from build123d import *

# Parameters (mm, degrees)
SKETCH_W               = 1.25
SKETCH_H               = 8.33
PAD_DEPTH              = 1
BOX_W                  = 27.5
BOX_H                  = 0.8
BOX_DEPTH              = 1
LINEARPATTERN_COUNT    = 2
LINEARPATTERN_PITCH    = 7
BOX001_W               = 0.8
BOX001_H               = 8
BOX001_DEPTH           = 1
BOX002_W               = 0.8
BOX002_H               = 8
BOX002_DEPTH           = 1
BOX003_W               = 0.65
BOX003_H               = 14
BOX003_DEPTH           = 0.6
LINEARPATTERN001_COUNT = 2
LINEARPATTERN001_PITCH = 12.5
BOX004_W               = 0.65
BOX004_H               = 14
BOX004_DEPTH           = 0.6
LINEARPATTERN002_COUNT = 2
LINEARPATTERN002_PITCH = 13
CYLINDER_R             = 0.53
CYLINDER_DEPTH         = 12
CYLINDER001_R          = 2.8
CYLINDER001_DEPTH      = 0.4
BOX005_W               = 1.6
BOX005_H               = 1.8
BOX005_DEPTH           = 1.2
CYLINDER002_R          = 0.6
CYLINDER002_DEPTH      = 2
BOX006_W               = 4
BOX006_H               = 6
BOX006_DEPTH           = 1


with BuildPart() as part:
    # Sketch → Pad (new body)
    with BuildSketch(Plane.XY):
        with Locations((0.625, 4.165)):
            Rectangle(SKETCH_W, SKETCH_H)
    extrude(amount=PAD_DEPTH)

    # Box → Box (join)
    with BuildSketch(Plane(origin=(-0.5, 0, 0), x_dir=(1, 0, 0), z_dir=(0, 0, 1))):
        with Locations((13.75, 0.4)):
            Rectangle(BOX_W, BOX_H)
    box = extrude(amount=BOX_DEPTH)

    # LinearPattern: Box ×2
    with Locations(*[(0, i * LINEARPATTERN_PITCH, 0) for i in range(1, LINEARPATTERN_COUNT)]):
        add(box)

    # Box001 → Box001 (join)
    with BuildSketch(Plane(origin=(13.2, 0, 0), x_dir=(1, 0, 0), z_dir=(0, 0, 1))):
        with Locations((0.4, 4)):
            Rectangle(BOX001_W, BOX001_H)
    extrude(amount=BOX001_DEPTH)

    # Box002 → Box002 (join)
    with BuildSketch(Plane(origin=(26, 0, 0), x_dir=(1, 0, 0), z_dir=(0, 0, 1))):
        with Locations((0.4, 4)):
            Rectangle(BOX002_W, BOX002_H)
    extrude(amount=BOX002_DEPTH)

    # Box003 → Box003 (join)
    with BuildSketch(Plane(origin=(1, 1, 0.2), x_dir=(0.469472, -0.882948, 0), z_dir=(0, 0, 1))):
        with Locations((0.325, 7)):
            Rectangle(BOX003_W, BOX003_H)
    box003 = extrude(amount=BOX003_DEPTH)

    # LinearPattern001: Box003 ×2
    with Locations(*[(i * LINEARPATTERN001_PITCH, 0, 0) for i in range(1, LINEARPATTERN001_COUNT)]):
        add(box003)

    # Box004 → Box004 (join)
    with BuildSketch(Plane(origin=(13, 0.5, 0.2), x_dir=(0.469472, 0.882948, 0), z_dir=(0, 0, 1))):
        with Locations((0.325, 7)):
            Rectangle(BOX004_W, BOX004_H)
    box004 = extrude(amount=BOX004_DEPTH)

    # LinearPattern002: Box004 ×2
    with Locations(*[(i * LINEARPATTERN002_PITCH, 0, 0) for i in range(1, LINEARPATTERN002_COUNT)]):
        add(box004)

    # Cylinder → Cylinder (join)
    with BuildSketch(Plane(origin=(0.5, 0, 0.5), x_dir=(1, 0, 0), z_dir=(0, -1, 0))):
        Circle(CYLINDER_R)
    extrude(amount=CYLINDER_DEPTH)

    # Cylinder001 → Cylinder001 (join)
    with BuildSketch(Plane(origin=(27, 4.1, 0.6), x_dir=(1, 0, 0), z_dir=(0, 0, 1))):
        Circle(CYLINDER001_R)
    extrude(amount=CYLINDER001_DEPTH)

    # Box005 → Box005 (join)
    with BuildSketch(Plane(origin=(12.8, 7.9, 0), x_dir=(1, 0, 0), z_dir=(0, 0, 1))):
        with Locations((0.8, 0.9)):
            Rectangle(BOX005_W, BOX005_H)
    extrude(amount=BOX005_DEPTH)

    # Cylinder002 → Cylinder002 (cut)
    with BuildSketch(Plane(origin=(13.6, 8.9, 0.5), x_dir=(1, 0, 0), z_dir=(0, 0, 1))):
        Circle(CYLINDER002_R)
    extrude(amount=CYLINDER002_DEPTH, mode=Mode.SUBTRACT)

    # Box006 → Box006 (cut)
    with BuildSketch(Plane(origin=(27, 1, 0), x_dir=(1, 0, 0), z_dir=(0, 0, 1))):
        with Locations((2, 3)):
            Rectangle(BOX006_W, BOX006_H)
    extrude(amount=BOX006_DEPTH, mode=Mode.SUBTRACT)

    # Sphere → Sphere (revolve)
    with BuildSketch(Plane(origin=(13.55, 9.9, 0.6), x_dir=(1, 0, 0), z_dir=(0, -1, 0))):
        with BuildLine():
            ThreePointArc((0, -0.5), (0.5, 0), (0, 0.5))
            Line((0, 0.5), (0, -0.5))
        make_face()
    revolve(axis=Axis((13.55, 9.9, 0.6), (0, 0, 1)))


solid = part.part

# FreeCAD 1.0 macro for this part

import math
import FreeCAD as App
import Part
import Sketcher

V = App.Vector
Q = App.Units.Quantity

doc = App.newDocument("Part")
body = doc.addObject("PartDesign::Body", "Body")

# Sketch on XY plane
sketch1 = body.newObject("Sketcher::SketchObject", "Sketch")
sketch1.AttachmentSupport = (doc.getObject("XY_Plane"), [""])
sketch1.MapMode = "FlatFace"
sketch1.addGeometry([
    Part.LineSegment(V(0, 8.3, 0), V(0, 0, 0)),
    Part.LineSegment(V(0, 0, 0), V(1.2, 0, 0)),
    Part.LineSegment(V(1.2, 0, 0), V(1.2, 8.3, 0)),
    Part.LineSegment(V(1.2, 8.3, 0), V(0, 8.3, 0)),
], False)
sketch1.addConstraint([
    Sketcher.Constraint("Coincident", 0, 2, 1, 1),
    Sketcher.Constraint("Coincident", 1, 2, 2, 1),
    Sketcher.Constraint("Coincident", 2, 2, 3, 1),
    Sketcher.Constraint("Coincident", 3, 2, 0, 1),
    Sketcher.Constraint("Vertical", 0),
    Sketcher.Constraint("Horizontal", 1),
    Sketcher.Constraint("Vertical", 2),
    Sketcher.Constraint("Horizontal", 3),
    Sketcher.Constraint("Coincident", 0, 2, -1, 1),
    Sketcher.Constraint("DistanceX", 1, 1, 1, 2, 1.25),
    Sketcher.Constraint("DistanceY", 0, 2, 0, 1, 8.33),
])
pad1 = body.newObject("PartDesign::Pad", "Pad")
pad1.Profile = sketch1
pad1.Length = 1

# Sketch on XY plane
sketch2 = body.newObject("Sketcher::SketchObject", "Sketch001")
sketch2.AttachmentSupport = (doc.getObject("XY_Plane"), [""])
sketch2.MapMode = "FlatFace"
sketch2.addGeometry([
    Part.LineSegment(V(-0.5, 0.8, 0), V(-0.5, 0, 0)),
    Part.LineSegment(V(-0.5, 0, 0), V(27, 0, 0)),
    Part.LineSegment(V(27, 0, 0), V(27, 0.8, 0)),
    Part.LineSegment(V(27, 0.8, 0), V(-0.5, 0.8, 0)),
], False)
sketch2.addConstraint([
    Sketcher.Constraint("Coincident", 0, 2, 1, 1),
    Sketcher.Constraint("Coincident", 1, 2, 2, 1),
    Sketcher.Constraint("Coincident", 2, 2, 3, 1),
    Sketcher.Constraint("Coincident", 3, 2, 0, 1),
    Sketcher.Constraint("Vertical", 0),
    Sketcher.Constraint("Horizontal", 1),
    Sketcher.Constraint("Vertical", 2),
    Sketcher.Constraint("Horizontal", 3),
    Sketcher.Constraint("PointOnObject", 0, 2, -1),
    Sketcher.Constraint("DistanceX", 1, 1, 1, 2, 27.5),
    Sketcher.Constraint("DistanceY", 0, 2, 0, 1, 0.8),
    Sketcher.Constraint("DistanceX", -1, 1, 1, 2, 27.0),
])
pad2 = body.newObject("PartDesign::Pad", "Pad001")
pad2.Profile = sketch2
pad2.Length = 1
doc.recompute()

linearpattern = body.newObject("PartDesign::LinearPattern", "LinearPattern")
linearpattern.Originals = [pad2]
linearpattern.Direction = (doc.getObject("Y_Axis"), [""])
linearpattern.Mode = "offset"
linearpattern.Offset = 7
linearpattern.Occurrences = 2
body.Tip = linearpattern

# Sketch on XY plane
sketch3 = body.newObject("Sketcher::SketchObject", "Sketch002")
sketch3.AttachmentSupport = (doc.getObject("XY_Plane"), [""])
sketch3.MapMode = "FlatFace"
sketch3.addGeometry([
    Part.LineSegment(V(13.2, 8, 0), V(13.2, 0, 0)),
    Part.LineSegment(V(13.2, 0, 0), V(14, 0, 0)),
    Part.LineSegment(V(14, 0, 0), V(14, 8, 0)),
    Part.LineSegment(V(14, 8, 0), V(13.2, 8, 0)),
], False)
sketch3.addConstraint([
    Sketcher.Constraint("Coincident", 0, 2, 1, 1),
    Sketcher.Constraint("Coincident", 1, 2, 2, 1),
    Sketcher.Constraint("Coincident", 2, 2, 3, 1),
    Sketcher.Constraint("Coincident", 3, 2, 0, 1),
    Sketcher.Constraint("Vertical", 0),
    Sketcher.Constraint("Horizontal", 1),
    Sketcher.Constraint("Vertical", 2),
    Sketcher.Constraint("Horizontal", 3),
    Sketcher.Constraint("PointOnObject", 0, 2, -1),
    Sketcher.Constraint("DistanceY", 0, 2, 0, 1, 8.0),
    Sketcher.Constraint("DistanceX", 1, 1, 1, 2, 0.8),
    Sketcher.Constraint("DistanceX", -1, 1, 1, 2, 14.0),
])
pad3 = body.newObject("PartDesign::Pad", "Pad002")
pad3.Profile = sketch3
pad3.Length = 1

# Sketch on XY plane
sketch4 = body.newObject("Sketcher::SketchObject", "Sketch003")
sketch4.AttachmentSupport = (doc.getObject("XY_Plane"), [""])
sketch4.MapMode = "FlatFace"
sketch4.addGeometry([
    Part.LineSegment(V(26, 8, 0), V(26, 0, 0)),
    Part.LineSegment(V(26, 0, 0), V(26.8, 0, 0)),
    Part.LineSegment(V(26.8, 0, 0), V(26.8, 8, 0)),
    Part.LineSegment(V(26.8, 8, 0), V(26, 8, 0)),
], False)
sketch4.addConstraint([
    Sketcher.Constraint("Coincident", 0, 2, 1, 1),
    Sketcher.Constraint("Coincident", 1, 2, 2, 1),
    Sketcher.Constraint("Coincident", 2, 2, 3, 1),
    Sketcher.Constraint("Coincident", 3, 2, 0, 1),
    Sketcher.Constraint("Vertical", 0),
    Sketcher.Constraint("Horizontal", 1),
    Sketcher.Constraint("Vertical", 2),
    Sketcher.Constraint("Horizontal", 3),
    Sketcher.Constraint("PointOnObject", 0, 2, -1),
    Sketcher.Constraint("DistanceY", 0, 2, 0, 1, 8.0),
    Sketcher.Constraint("DistanceX", 1, 1, 1, 2, 0.8),
    Sketcher.Constraint("DistanceX", -1, 1, 0, 2, 26.0),
])
pad4 = body.newObject("PartDesign::Pad", "Pad003")
pad4.Profile = sketch4
pad4.Length = 1

# Sketch on XY plane
sketch5 = body.newObject("Sketcher::SketchObject", "Sketch004")
sketch5.AttachmentSupport = (doc.getObject("XY_Plane"), [""])
sketch5.MapMode = "FlatFace"
sketch5.AttachmentOffset = App.Placement(V(0, 0, 0.2), App.Rotation())
sketch5.addGeometry([
    Part.LineSegment(V(13.4, 7.6, 0), V(1, 1, 0)),
    Part.LineSegment(V(1, 1, 0), V(1.3, 0.4, 0)),
    Part.LineSegment(V(1.3, 0.4, 0), V(13.7, 7, 0)),
    Part.LineSegment(V(13.7, 7, 0), V(13.4, 7.6, 0)),
], False)
sketch5.addConstraint([
    Sketcher.Constraint("Coincident", 0, 2, 1, 1),
    Sketcher.Constraint("Coincident", 1, 2, 2, 1),
    Sketcher.Constraint("Coincident", 2, 2, 3, 1),
    Sketcher.Constraint("Coincident", 3, 2, 0, 1),
    Sketcher.Constraint("Perpendicular", 0, 1),
    Sketcher.Constraint("Perpendicular", 1, 2),
    Sketcher.Constraint("Perpendicular", 2, 3),
    Sketcher.Constraint("Angle", 0, Q("-151.999989 deg")),
    Sketcher.Constraint("Distance", 0, 14.0),
    Sketcher.Constraint("DistanceX", -1, 1, 0, 2, 1.0),
    Sketcher.Constraint("DistanceY", -1, 1, 0, 2, 1.0),
    Sketcher.Constraint("Distance", 1, 0.65),
])
pad5 = body.newObject("PartDesign::Pad", "Pad004")
pad5.Profile = sketch5
pad5.Length = 0.6
doc.recompute()

linearpattern2 = body.newObject("PartDesign::LinearPattern", "LinearPattern001")
linearpattern2.Originals = [pad5]
linearpattern2.Direction = (doc.getObject("X_Axis"), [""])
linearpattern2.Mode = "offset"
linearpattern2.Offset = 12.5
linearpattern2.Occurrences = 2
body.Tip = linearpattern2

# Sketch on XY plane
sketch6 = body.newObject("Sketcher::SketchObject", "Sketch005")
sketch6.AttachmentSupport = (doc.getObject("XY_Plane"), [""])
sketch6.MapMode = "FlatFace"
sketch6.AttachmentOffset = App.Placement(V(0, 0, 0.2), App.Rotation())
sketch6.addGeometry([
    Part.LineSegment(V(0.6, 7.1, 0), V(13, 0.5, 0)),
    Part.LineSegment(V(13, 0.5, 0), V(13.3, 1.1, 0)),
    Part.LineSegment(V(13.3, 1.1, 0), V(0.9, 7.6, 0)),
    Part.LineSegment(V(0.9, 7.6, 0), V(0.6, 7.1, 0)),
], False)
sketch6.addConstraint([
    Sketcher.Constraint("Coincident", 0, 2, 1, 1),
    Sketcher.Constraint("Coincident", 1, 2, 2, 1),
    Sketcher.Constraint("Coincident", 2, 2, 3, 1),
    Sketcher.Constraint("Coincident", 3, 2, 0, 1),
    Sketcher.Constraint("Perpendicular", 0, 1),
    Sketcher.Constraint("Perpendicular", 1, 2),
    Sketcher.Constraint("Perpendicular", 2, 3),
    Sketcher.Constraint("Angle", 0, Q("-28.000011 deg")),
    Sketcher.Constraint("Distance", 0, 14.0),
    Sketcher.Constraint("DistanceX", -1, 1, 0, 2, 13.0),
    Sketcher.Constraint("DistanceY", -1, 1, 0, 2, 0.5),
    Sketcher.Constraint("Distance", 1, 0.65),
])
pad6 = body.newObject("PartDesign::Pad", "Pad005")
pad6.Profile = sketch6
pad6.Length = 0.6
doc.recompute()

linearpattern3 = body.newObject("PartDesign::LinearPattern", "LinearPattern002")
linearpattern3.Originals = [pad6]
linearpattern3.Direction = (doc.getObject("X_Axis"), [""])
linearpattern3.Mode = "offset"
linearpattern3.Offset = 13
linearpattern3.Occurrences = 2
body.Tip = linearpattern3

# Sketch on XZ plane
sketch7 = body.newObject("Sketcher::SketchObject", "Sketch006")
sketch7.AttachmentSupport = (doc.getObject("XZ_Plane"), [""])
sketch7.MapMode = "FlatFace"
sketch7.addGeometry(Part.Circle(V(0.5, 0.5, 0), V(0, 0, 1), 0.5), False)
sketch7.addConstraint([
    Sketcher.Constraint("Diameter", 0, 1.06),
    Sketcher.Constraint("DistanceX", -1, 1, 0, 3, 0.5),
    Sketcher.Constraint("DistanceY", -1, 1, 0, 3, 0.5),
])
pad7 = body.newObject("PartDesign::Pad", "Pad006")
pad7.Profile = sketch7
pad7.Length = 12

# Sketch on XY plane
sketch8 = body.newObject("Sketcher::SketchObject", "Sketch007")
sketch8.AttachmentSupport = (doc.getObject("XY_Plane"), [""])
sketch8.MapMode = "FlatFace"
sketch8.AttachmentOffset = App.Placement(V(0, 0, 0.6), App.Rotation())
sketch8.addGeometry(Part.Circle(V(27, 4.1, 0), V(0, 0, 1), 2.8), False)
sketch8.addConstraint([
    Sketcher.Constraint("Diameter", 0, 5.6),
    Sketcher.Constraint("DistanceX", -1, 1, 0, 3, 27.0),
    Sketcher.Constraint("DistanceY", -1, 1, 0, 3, 4.1),
])
pad8 = body.newObject("PartDesign::Pad", "Pad007")
pad8.Profile = sketch8
pad8.Length = 0.4

# Sketch on XY plane
sketch9 = body.newObject("Sketcher::SketchObject", "Sketch008")
sketch9.AttachmentSupport = (doc.getObject("XY_Plane"), [""])
sketch9.MapMode = "FlatFace"
sketch9.addGeometry([
    Part.LineSegment(V(12.8, 9.7, 0), V(12.8, 7.9, 0)),
    Part.LineSegment(V(12.8, 7.9, 0), V(14.4, 7.9, 0)),
    Part.LineSegment(V(14.4, 7.9, 0), V(14.4, 9.7, 0)),
    Part.LineSegment(V(14.4, 9.7, 0), V(12.8, 9.7, 0)),
], False)
sketch9.addConstraint([
    Sketcher.Constraint("Coincident", 0, 2, 1, 1),
    Sketcher.Constraint("Coincident", 1, 2, 2, 1),
    Sketcher.Constraint("Coincident", 2, 2, 3, 1),
    Sketcher.Constraint("Coincident", 3, 2, 0, 1),
    Sketcher.Constraint("Vertical", 0),
    Sketcher.Constraint("Horizontal", 1),
    Sketcher.Constraint("Vertical", 2),
    Sketcher.Constraint("Horizontal", 3),
    Sketcher.Constraint("DistanceX", 1, 1, 1, 2, 1.6),
    Sketcher.Constraint("DistanceY", 0, 2, 0, 1, 1.8),
    Sketcher.Constraint("DistanceX", -1, 1, 0, 2, 12.8),
    Sketcher.Constraint("DistanceY", -1, 1, 0, 2, 7.9),
])
pad9 = body.newObject("PartDesign::Pad", "Pad008")
pad9.Profile = sketch9
pad9.Length = 1.2

# Sketch on XY plane
sketch10 = body.newObject("Sketcher::SketchObject", "Sketch009")
sketch10.AttachmentSupport = (doc.getObject("XY_Plane"), [""])
sketch10.MapMode = "FlatFace"
sketch10.AttachmentOffset = App.Placement(V(0, 0, 0.5), App.Rotation())
sketch10.addGeometry(Part.Circle(V(13.6, 8.9, 0), V(0, 0, 1), 0.6), False)
sketch10.addConstraint([
    Sketcher.Constraint("Diameter", 0, 1.2),
    Sketcher.Constraint("DistanceX", -1, 1, 0, 3, 13.6),
    Sketcher.Constraint("DistanceY", -1, 1, 0, 3, 8.9),
])
pocket1 = body.newObject("PartDesign::Pocket", "Pocket")
pocket1.Profile = sketch10
pocket1.Length = 2
pocket1.Reversed = True

# Sketch on XY plane
sketch11 = body.newObject("Sketcher::SketchObject", "Sketch010")
sketch11.AttachmentSupport = (doc.getObject("XY_Plane"), [""])
sketch11.MapMode = "FlatFace"
sketch11.addGeometry([
    Part.LineSegment(V(27, 7, 0), V(27, 1, 0)),
    Part.LineSegment(V(27, 1, 0), V(31, 1, 0)),
    Part.LineSegment(V(31, 1, 0), V(31, 7, 0)),
    Part.LineSegment(V(31, 7, 0), V(27, 7, 0)),
], False)
sketch11.addConstraint([
    Sketcher.Constraint("Coincident", 0, 2, 1, 1),
    Sketcher.Constraint("Coincident", 1, 2, 2, 1),
    Sketcher.Constraint("Coincident", 2, 2, 3, 1),
    Sketcher.Constraint("Coincident", 3, 2, 0, 1),
    Sketcher.Constraint("Vertical", 0),
    Sketcher.Constraint("Horizontal", 1),
    Sketcher.Constraint("Vertical", 2),
    Sketcher.Constraint("Horizontal", 3),
    Sketcher.Constraint("DistanceX", 1, 1, 1, 2, 4.0),
    Sketcher.Constraint("DistanceY", 0, 2, 0, 1, 6.0),
    Sketcher.Constraint("DistanceX", -1, 1, 0, 2, 27.0),
    Sketcher.Constraint("DistanceY", -1, 1, 0, 2, 1.0),
])
pocket2 = body.newObject("PartDesign::Pocket", "Pocket001")
pocket2.Profile = sketch11
pocket2.Length = 1
pocket2.Reversed = True

# Sketch on XZ plane
sketch12 = body.newObject("Sketcher::SketchObject", "Sketch011")
sketch12.AttachmentSupport = (doc.getObject("XZ_Plane"), [""])
sketch12.MapMode = "FlatFace"
sketch12.AttachmentOffset = App.Placement(V(0, 0, -9.9), App.Rotation())
sketch12.addGeometry([
    Part.ArcOfCircle(Part.Circle(V(13.6, 0.6, 0), V(0, 0, 1), 0.5), math.radians(-90), math.radians(90)),
    Part.LineSegment(V(13.6, 1.1, 0), V(13.6, 0.1, 0)),
], False)
sketch12.addGeometry(Part.LineSegment(V(13.6, 0.1, 0), V(13.6, 1.1, 0)), True)  # axis
sketch12.addConstraint([
    Sketcher.Constraint("Coincident", 0, 1, 1, 2),
    Sketcher.Constraint("Coincident", 1, 1, 0, 2),
    Sketcher.Constraint("Vertical", 1),
    Sketcher.Constraint("Vertical", 2),
    Sketcher.Constraint("Coincident", 2, 1, 0, 1),
    Sketcher.Constraint("Equal", 1, 2),
    Sketcher.Constraint("Radius", 0, 0.5),
    Sketcher.Constraint("DistanceY", -1, 1, 0, 3, 0.6),
    Sketcher.Constraint("DistanceX", -1, 1, 0, 3, 13.55),
    Sketcher.Constraint("DistanceX", -1, 1, 0, 1, 13.55),
])
revolution = body.newObject("PartDesign::Revolution", "Revolution")
revolution.Profile = sketch12
revolution.ReferenceAxis = (sketch12, ["Axis0"])
revolution.Angle = 360

doc.recompute()
